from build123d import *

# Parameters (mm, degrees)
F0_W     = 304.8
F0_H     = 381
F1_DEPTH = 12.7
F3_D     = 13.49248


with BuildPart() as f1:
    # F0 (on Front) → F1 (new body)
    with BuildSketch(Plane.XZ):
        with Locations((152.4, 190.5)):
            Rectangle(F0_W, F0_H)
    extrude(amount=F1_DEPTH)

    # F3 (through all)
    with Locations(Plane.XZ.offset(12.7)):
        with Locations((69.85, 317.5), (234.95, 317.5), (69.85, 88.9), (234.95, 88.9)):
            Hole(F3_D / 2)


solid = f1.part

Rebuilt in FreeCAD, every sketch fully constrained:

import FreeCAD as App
import Part
import Sketcher
Q = App.Units.Quantity


def add_polygon(sketch, points):
    """Adds a closed chain of lines whose ends are joined by coincident constraints."""
    first, n = sketch.GeometryCount, len(points)
    for a, b in zip(points, points[1:] + points[:1]):
        sketch.addGeometry(Part.LineSegment(App.Vector(*a, 0), App.Vector(*b, 0)), False)
    for i in range(n):
        sketch.addConstraint(Sketcher.Constraint("Coincident", first + i, 2, first + (i + 1) % n, 1))

doc = App.newDocument("Part")
params = doc.addObject("Spreadsheet::Sheet", "Params")
for row, (alias, value) in enumerate([
    ("sketch1_width", "12 in"),
    ("sketch1_height", "15 in"),
    ("pad1_length", "0.5 in"),
    ("hole_diameter", "0.5312 in"),
], start=1):
    params.set(f"A{row}", alias)
    params.set(f"B{row}", "=" + value)
    params.setAlias(f"B{row}", alias)

body = doc.addObject("PartDesign::Body", "Body")

# Sketch on XZ plane
sketch1 = body.newObject("Sketcher::SketchObject", "Sketch")
sketch1.AttachmentSupport = (doc.getObject("XZ_Plane"), [""])
sketch1.MapMode = "FlatFace"
add_polygon(sketch1, [(0, 381), (0, 0), (304.8, 0), (304.8, 381)])  # lines 0-3
sketch1.addConstraint(Sketcher.Constraint("Vertical", 0))
sketch1.addConstraint(Sketcher.Constraint("Horizontal", 1))
sketch1.addConstraint(Sketcher.Constraint("Vertical", 2))
sketch1.addConstraint(Sketcher.Constraint("Horizontal", 3))
sketch1.addConstraint(Sketcher.Constraint("Coincident", 0, 2, -1, 1))
sketch1.addConstraint(Sketcher.Constraint("DistanceX", 1, 1, 1, 2, Q("12 in")))
sketch1.addConstraint(Sketcher.Constraint("DistanceY", 0, 2, 0, 1, Q("15 in")))
sketch1.setExpression("Constraints[9]", "Params.sketch1_width")
sketch1.setExpression("Constraints[10]", "Params.sketch1_height")
pad1 = body.newObject("PartDesign::Pad", "Pad")
pad1.Profile = sketch1
pad1.setExpression("Length", "Params.pad1_length")

# Sketch on XZ plane
sketch2 = body.newObject("Sketcher::SketchObject", "Sketch001")
sketch2.AttachmentSupport = (doc.getObject("XZ_Plane"), [""])
sketch2.MapMode = "FlatFace"
sketch2.AttachmentOffset = App.Placement(App.Vector(0, 0, 0.5 * 25.4), App.Rotation())
sketch2.addGeometry(Part.Circle(App.Vector(69.85, 317.5, 0), App.Vector(0, 0, 1), 6.74624), False)
sketch2.addGeometry(Part.Circle(App.Vector(234.95, 317.5, 0), App.Vector(0, 0, 1), 6.74624), False)
sketch2.addGeometry(Part.Circle(App.Vector(69.85, 88.9, 0), App.Vector(0, 0, 1), 6.74624), False)
sketch2.addGeometry(Part.Circle(App.Vector(234.95, 88.9, 0), App.Vector(0, 0, 1), 6.74624), False)
sketch2.addConstraint(Sketcher.Constraint("Equal", 0, 1))
sketch2.addConstraint(Sketcher.Constraint("Equal", 1, 2))
sketch2.addConstraint(Sketcher.Constraint("Equal", 2, 3))
sketch2.addConstraint(Sketcher.Constraint("Horizontal", 0, 3, 1, 3))
sketch2.addConstraint(Sketcher.Constraint("Horizontal", 2, 3, 3, 3))
sketch2.addConstraint(Sketcher.Constraint("Vertical", 0, 3, 2, 3))
sketch2.addConstraint(Sketcher.Constraint("Vertical", 1, 3, 3, 3))
sketch2.addConstraint(Sketcher.Constraint("DistanceY", 2, 3, 0, 3, Q("9 in")))
sketch2.addConstraint(Sketcher.Constraint("Diameter", 0, Q("0.5312 in")))
sketch2.addConstraint(Sketcher.Constraint("DistanceY", -1, 1, 0, 3, Q("12.5 in")))
sketch2.addConstraint(Sketcher.Constraint("DistanceX", 0, 3, 1, 3, Q("6.5 in")))
sketch2.addConstraint(Sketcher.Constraint("DistanceX", -1, 1, 0, 3, Q("2.75 in")))
doc.recompute()
hole = body.newObject("PartDesign::Hole", "Hole")
hole.Profile = sketch2
hole.ThreadType = "None"
hole.setExpression("Diameter", "Params.hole_diameter")
hole.DepthType = "ThroughAll"

doc.recompute()
